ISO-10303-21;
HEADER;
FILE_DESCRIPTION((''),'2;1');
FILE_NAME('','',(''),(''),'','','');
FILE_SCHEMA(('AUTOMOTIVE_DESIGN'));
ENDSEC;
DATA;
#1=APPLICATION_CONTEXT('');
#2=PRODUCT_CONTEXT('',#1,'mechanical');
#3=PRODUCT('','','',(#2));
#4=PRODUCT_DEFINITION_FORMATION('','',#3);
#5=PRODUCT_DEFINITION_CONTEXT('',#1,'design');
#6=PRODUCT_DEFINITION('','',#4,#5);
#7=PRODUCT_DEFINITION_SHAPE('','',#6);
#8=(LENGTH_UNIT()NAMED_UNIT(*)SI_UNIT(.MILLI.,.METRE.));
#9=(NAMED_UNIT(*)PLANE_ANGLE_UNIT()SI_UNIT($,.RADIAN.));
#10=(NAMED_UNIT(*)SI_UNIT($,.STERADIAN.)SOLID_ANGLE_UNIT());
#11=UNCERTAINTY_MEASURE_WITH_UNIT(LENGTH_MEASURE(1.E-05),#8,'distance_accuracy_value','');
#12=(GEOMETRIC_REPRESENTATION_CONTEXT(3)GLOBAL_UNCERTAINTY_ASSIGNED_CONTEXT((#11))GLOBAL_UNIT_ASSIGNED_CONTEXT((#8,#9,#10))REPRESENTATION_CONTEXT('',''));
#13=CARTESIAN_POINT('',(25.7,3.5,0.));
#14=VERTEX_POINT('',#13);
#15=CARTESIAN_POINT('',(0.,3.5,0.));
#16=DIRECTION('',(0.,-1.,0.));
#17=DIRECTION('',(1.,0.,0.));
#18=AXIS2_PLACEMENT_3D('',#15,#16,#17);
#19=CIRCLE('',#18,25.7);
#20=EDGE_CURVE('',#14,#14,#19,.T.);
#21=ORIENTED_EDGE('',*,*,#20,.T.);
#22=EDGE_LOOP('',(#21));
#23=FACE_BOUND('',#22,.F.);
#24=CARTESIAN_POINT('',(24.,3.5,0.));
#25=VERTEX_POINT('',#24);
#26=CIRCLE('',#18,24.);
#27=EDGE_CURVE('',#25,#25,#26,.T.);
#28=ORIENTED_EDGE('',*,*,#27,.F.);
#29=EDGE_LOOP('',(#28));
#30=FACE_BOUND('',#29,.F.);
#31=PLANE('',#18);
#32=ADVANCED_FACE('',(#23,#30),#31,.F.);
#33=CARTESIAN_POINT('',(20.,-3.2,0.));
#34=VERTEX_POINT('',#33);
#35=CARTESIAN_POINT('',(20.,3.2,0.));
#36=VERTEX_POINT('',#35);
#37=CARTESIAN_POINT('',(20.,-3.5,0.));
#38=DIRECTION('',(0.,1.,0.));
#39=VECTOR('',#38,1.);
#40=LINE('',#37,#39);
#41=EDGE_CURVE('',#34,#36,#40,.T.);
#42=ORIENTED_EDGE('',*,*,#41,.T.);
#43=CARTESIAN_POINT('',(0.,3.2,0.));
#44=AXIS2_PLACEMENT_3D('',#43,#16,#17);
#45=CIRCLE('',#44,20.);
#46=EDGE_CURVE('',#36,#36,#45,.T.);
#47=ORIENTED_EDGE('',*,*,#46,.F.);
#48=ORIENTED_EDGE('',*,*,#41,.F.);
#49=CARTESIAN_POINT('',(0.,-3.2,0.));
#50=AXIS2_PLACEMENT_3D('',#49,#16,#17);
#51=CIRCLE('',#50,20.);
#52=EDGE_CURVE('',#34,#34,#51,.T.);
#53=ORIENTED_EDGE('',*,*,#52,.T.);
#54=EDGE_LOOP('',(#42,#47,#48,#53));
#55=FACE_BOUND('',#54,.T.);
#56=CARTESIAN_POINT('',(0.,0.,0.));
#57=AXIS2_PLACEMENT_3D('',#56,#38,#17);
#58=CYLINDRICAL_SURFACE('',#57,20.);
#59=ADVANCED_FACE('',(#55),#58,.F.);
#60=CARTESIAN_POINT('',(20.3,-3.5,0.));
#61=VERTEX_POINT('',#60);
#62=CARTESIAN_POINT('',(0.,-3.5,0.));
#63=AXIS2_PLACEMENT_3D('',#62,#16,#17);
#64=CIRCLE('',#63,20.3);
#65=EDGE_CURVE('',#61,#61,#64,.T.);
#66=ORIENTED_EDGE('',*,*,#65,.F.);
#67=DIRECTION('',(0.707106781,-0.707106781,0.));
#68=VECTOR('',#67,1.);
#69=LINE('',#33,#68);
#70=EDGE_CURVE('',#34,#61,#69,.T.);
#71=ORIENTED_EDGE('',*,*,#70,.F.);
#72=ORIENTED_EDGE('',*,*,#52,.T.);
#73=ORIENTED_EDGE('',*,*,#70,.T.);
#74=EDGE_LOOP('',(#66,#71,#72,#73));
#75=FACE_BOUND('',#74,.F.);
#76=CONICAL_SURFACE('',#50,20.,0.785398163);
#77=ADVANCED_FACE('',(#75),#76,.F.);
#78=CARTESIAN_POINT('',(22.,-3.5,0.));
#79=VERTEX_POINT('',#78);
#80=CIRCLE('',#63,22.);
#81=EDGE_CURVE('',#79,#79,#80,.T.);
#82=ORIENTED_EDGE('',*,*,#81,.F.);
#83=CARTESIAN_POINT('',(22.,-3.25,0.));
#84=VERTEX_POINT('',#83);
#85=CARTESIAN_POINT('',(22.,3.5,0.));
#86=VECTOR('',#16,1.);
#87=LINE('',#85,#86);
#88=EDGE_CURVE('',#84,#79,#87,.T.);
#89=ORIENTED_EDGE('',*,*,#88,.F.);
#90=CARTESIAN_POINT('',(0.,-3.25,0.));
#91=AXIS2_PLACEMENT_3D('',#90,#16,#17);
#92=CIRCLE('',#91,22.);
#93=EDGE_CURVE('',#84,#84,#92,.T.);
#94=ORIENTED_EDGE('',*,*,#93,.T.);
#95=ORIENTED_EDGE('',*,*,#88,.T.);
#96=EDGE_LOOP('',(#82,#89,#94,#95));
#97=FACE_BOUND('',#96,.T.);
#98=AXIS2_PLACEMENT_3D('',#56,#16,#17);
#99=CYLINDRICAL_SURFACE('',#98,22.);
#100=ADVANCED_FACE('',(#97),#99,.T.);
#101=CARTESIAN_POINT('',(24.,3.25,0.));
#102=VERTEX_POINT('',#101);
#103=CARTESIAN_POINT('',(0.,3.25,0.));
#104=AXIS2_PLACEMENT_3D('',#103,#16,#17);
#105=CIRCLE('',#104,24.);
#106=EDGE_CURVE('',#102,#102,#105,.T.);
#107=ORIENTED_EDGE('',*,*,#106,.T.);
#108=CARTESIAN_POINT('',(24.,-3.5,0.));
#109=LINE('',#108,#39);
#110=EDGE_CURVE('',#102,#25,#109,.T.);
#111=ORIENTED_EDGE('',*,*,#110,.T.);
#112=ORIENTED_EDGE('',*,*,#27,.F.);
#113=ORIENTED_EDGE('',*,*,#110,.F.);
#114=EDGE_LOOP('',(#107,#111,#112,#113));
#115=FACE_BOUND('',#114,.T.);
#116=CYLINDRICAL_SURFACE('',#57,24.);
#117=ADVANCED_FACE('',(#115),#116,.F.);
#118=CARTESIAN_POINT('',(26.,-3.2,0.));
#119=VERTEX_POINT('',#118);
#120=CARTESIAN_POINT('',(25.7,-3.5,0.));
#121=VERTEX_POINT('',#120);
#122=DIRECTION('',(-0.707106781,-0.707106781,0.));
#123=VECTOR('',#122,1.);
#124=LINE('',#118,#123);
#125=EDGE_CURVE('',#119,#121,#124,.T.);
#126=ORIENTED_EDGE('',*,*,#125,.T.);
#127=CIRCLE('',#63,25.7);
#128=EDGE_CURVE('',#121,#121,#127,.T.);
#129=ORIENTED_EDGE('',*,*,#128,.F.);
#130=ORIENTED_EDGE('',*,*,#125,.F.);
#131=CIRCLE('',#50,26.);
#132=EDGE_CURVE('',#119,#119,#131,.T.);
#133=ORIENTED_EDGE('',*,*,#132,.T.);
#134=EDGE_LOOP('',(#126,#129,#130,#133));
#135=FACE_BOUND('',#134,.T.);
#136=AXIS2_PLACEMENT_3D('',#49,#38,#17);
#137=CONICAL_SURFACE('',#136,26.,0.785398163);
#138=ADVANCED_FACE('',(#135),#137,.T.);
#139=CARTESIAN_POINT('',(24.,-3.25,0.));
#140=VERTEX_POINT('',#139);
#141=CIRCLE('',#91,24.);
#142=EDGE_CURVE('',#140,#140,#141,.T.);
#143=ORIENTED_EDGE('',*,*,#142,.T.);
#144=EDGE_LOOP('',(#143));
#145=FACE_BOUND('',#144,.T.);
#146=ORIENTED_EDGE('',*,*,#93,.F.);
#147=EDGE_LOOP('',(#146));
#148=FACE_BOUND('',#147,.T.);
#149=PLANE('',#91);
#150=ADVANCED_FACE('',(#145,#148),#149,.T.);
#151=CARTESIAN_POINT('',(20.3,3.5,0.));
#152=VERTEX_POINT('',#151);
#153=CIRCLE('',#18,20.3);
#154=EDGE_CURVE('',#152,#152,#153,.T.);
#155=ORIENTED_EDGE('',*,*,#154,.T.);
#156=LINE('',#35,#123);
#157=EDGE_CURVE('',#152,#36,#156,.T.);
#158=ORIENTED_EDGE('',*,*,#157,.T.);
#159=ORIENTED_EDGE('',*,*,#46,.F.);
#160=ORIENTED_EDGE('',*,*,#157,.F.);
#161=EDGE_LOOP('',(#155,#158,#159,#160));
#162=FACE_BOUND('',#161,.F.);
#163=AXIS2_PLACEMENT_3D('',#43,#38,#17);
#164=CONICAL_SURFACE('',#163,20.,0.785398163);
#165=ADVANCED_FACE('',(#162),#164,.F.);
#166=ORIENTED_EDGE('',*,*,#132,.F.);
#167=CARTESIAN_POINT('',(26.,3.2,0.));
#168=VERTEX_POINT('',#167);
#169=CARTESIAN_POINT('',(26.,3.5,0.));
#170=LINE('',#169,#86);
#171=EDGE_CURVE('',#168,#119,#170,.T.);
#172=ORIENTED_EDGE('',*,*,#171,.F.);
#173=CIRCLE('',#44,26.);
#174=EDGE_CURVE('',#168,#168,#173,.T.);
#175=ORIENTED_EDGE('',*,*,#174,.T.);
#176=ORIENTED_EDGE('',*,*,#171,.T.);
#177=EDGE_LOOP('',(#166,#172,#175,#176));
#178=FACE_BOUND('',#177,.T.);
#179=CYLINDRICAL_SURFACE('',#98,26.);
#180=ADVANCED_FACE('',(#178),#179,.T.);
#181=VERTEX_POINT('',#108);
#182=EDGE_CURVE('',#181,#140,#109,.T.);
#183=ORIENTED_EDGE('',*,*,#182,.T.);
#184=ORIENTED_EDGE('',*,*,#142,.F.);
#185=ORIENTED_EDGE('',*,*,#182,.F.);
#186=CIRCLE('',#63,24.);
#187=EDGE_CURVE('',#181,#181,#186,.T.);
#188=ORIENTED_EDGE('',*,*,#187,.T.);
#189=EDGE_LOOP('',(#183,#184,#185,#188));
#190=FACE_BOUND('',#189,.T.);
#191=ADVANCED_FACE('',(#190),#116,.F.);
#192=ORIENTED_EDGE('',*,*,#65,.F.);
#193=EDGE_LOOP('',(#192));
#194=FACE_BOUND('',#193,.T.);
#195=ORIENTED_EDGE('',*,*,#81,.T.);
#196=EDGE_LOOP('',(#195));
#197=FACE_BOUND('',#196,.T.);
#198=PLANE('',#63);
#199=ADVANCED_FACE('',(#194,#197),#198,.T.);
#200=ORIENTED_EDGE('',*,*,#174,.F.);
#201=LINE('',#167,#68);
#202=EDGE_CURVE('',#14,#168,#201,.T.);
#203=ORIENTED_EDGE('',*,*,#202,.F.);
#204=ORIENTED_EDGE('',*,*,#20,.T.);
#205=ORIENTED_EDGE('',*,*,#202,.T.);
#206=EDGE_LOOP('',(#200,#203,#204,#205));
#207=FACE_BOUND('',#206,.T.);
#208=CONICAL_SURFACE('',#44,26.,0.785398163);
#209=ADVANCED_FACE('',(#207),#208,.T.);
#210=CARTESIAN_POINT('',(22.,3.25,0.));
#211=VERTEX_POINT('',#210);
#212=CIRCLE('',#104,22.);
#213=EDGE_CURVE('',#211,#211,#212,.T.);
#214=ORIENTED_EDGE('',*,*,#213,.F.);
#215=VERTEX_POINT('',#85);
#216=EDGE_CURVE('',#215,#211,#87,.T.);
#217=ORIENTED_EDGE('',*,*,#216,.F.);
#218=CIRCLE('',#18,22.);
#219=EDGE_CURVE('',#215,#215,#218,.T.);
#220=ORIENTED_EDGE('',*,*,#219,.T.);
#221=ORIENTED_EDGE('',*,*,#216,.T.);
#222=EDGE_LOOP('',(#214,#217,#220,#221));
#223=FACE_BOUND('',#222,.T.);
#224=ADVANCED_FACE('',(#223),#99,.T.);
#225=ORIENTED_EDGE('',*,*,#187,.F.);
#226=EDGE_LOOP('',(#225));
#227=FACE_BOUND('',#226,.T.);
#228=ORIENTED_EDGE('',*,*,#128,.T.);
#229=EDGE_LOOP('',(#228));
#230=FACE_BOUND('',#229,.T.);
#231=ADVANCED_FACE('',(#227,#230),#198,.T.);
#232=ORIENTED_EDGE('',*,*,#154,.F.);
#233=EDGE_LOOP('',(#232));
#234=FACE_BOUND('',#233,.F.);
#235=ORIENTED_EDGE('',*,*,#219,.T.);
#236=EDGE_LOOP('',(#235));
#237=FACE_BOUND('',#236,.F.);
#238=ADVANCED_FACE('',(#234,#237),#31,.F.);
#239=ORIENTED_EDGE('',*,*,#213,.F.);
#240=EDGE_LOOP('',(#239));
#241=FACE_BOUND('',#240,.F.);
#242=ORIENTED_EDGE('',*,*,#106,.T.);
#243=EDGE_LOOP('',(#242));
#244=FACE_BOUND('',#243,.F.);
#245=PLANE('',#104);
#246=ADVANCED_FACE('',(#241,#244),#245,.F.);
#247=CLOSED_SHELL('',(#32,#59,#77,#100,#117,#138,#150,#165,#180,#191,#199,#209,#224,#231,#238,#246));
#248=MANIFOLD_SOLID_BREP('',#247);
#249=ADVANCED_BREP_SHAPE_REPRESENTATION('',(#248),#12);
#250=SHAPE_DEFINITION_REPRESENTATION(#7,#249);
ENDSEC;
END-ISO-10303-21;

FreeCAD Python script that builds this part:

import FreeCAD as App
import Part
import Sketcher

V = App.Vector


def edges_at(feature, points):
    """Names of the edges that pass closest to the given points."""
    edges = feature.Shape.Edges
    near = lambda p: min(range(len(edges)), key=lambda i: edges[i].distToShape(Part.Vertex(*p))[0])
    return sorted({f"Edge{near(p) + 1}" for p in points})

doc = App.newDocument("Part")
body = doc.addObject("PartDesign::Body", "Body")

# Sketch on XZ plane
sketch1 = doc.addObject("Sketcher::SketchObject", "Sketch")
body.addObject(sketch1)
sketch1.AttachmentSupport = (doc.XZ_Plane, [""])
sketch1.MapMode = "FlatFace"
sketch1.addGeometry([
    Part.Circle(V(0, 0, 0), V(0, 0, 1), 26),
    Part.Circle(V(0, 0, 0), V(0, 0, 1), 24),
], False)
sketch1.addConstraint([
    Sketcher.Constraint("Coincident", 0, 3, -1, 1),
    Sketcher.Constraint("Coincident", 1, 3, -1, 1),
    Sketcher.Constraint("Diameter", 0, 52.0),
    Sketcher.Constraint("Diameter", 1, 48.0),
])
pad1 = doc.addObject("PartDesign::Pad", "Pad")
body.addObject(pad1)
pad1.Profile = sketch1
pad1.Length = 7
pad1.Midplane = True
body2 = doc.addObject("PartDesign::Body", "Body001")

# Sketch on XZ plane
sketch2 = doc.addObject("Sketcher::SketchObject", "Sketch001")
body2.addObject(sketch2)
sketch2.AttachmentSupport = (doc.getObject("XZ_Plane001"), [""])
sketch2.MapMode = "FlatFace"
sketch2.addGeometry([
    Part.Circle(V(0, 0, 0), V(0, 0, 1), 22),
    Part.Circle(V(0, 0, 0), V(0, 0, 1), 20),
], False)
sketch2.addConstraint([
    Sketcher.Constraint("Coincident", 0, 3, -1, 1),
    Sketcher.Constraint("Coincident", 1, 3, -1, 1),
    Sketcher.Constraint("Diameter", 0, 44.0),
    Sketcher.Constraint("Diameter", 1, 40.0),
])
pad2 = doc.addObject("PartDesign::Pad", "Pad001")
body2.addObject(pad2)
pad2.Profile = sketch2
pad2.Length = 7
pad2.Midplane = True
body.AllowCompound = True
doc.recompute()

boolean = doc.addObject("PartDesign::Boolean", "Boolean")
body.addObject(boolean)
boolean.Type = "Fuse"
boolean.addObjects([body2])

# Sketch on XZ plane
sketch3 = doc.addObject("Sketcher::SketchObject", "Sketch002")
body.addObject(sketch3)
sketch3.AttachmentSupport = (doc.XZ_Plane, [""])
sketch3.MapMode = "FlatFace"
sketch3.addGeometry([
    Part.Circle(V(0, 0, 0), V(0, 0, 1), 24),
    Part.Circle(V(0, 0, 0), V(0, 0, 1), 22),
], False)
sketch3.addConstraint([
    Sketcher.Constraint("Coincident", 0, 3, -1, 1),
    Sketcher.Constraint("Coincident", 1, 3, -1, 1),
    Sketcher.Constraint("Diameter", 0, 48.0),
    Sketcher.Constraint("Diameter", 1, 44.0),
])
pad3 = doc.addObject("PartDesign::Pad", "Pad002")
body.addObject(pad3)
pad3.Profile = sketch3
pad3.Length = 6.5
pad3.Midplane = True
doc.recompute()

chamfer = doc.addObject("PartDesign::Chamfer", "Chamfer")
body.addObject(chamfer)
chamfer.Base = (pad3, edges_at(pad3, [
    (-26, -3.5, 0),
    (-26, 3.5, 0),
    (-20, -3.5, 0),
    (-20, 3.5, 0),
]))
chamfer.Size = 0.3

doc.recompute()
